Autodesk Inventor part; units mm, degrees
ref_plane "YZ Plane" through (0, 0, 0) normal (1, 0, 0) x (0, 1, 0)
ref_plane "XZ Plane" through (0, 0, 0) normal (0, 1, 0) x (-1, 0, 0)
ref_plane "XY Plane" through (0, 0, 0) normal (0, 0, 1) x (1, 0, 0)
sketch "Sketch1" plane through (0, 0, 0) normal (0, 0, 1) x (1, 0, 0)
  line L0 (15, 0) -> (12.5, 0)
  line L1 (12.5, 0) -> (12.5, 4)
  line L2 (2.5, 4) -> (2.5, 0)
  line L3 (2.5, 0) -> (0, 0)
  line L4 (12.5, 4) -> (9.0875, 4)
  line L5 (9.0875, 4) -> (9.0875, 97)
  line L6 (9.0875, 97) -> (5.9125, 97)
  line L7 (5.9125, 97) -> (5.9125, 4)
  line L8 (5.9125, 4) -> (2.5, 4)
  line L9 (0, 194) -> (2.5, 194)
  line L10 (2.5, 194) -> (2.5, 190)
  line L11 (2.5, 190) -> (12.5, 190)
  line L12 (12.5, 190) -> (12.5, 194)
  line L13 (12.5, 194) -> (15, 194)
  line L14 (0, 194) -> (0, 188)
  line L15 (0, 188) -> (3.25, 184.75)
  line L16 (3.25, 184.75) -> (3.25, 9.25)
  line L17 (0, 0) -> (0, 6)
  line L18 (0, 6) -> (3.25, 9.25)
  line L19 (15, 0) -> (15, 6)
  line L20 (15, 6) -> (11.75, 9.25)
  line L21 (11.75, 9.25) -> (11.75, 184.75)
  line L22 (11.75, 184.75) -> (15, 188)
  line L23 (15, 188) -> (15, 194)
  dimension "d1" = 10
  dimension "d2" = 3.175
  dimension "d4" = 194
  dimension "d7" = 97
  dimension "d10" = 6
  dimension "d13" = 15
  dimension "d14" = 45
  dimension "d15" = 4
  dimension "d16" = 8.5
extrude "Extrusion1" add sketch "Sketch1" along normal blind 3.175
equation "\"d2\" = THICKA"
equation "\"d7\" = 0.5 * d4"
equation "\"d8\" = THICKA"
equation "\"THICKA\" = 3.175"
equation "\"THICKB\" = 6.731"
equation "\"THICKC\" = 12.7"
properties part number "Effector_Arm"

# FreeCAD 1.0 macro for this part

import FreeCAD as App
import Part
import Sketcher
Q = App.Units.Quantity

doc = App.newDocument("Part")
body = doc.addObject("PartDesign::Body", "Body")

sketch1 = doc.addObject("Sketcher::SketchObject", "Sketch")
body.addObject(sketch1)
sketch1.AttachmentSupport = (doc.XY_Plane, [""])
sketch1.MapMode = "FlatFace"
sketch1.addGeometry([
    Part.LineSegment(App.Vector(12.5, 0, 0), App.Vector(15, 0, 0)),
    Part.LineSegment(App.Vector(15, 0, 0), App.Vector(15, 6, 0)),
    Part.LineSegment(App.Vector(15, 6, 0), App.Vector(11.75, 9.25, 0)),
    Part.LineSegment(App.Vector(11.75, 9.25, 0), App.Vector(11.75, 184.75, 0)),
    Part.LineSegment(App.Vector(11.75, 184.75, 0), App.Vector(15, 188, 0)),
    Part.LineSegment(App.Vector(15, 188, 0), App.Vector(15, 194, 0)),
    Part.LineSegment(App.Vector(15, 194, 0), App.Vector(12.5, 194, 0)),
    Part.LineSegment(App.Vector(12.5, 194, 0), App.Vector(12.5, 190, 0)),
    Part.LineSegment(App.Vector(12.5, 190, 0), App.Vector(2.5, 190, 0)),
    Part.LineSegment(App.Vector(2.5, 190, 0), App.Vector(2.5, 194, 0)),
    Part.LineSegment(App.Vector(2.5, 194, 0), App.Vector(0, 194, 0)),
    Part.LineSegment(App.Vector(0, 194, 0), App.Vector(0, 188, 0)),
    Part.LineSegment(App.Vector(0, 188, 0), App.Vector(3.25, 184.75, 0)),
    Part.LineSegment(App.Vector(3.25, 184.75, 0), App.Vector(3.25, 9.25, 0)),
    Part.LineSegment(App.Vector(3.25, 9.25, 0), App.Vector(0, 6, 0)),
    Part.LineSegment(App.Vector(0, 6, 0), App.Vector(0, 0, 0)),
    Part.LineSegment(App.Vector(0, 0, 0), App.Vector(2.5, 0, 0)),
    Part.LineSegment(App.Vector(2.5, 0, 0), App.Vector(2.5, 4, 0)),
    Part.LineSegment(App.Vector(2.5, 4, 0), App.Vector(5.9125, 4, 0)),
    Part.LineSegment(App.Vector(5.9125, 4, 0), App.Vector(5.9125, 97, 0)),
    Part.LineSegment(App.Vector(5.9125, 97, 0), App.Vector(9.0875, 97, 0)),
    Part.LineSegment(App.Vector(9.0875, 97, 0), App.Vector(9.0875, 4, 0)),
    Part.LineSegment(App.Vector(9.0875, 4, 0), App.Vector(12.5, 4, 0)),
    Part.LineSegment(App.Vector(12.5, 4, 0), App.Vector(12.5, 0, 0)),
], False)
sketch1.addConstraint([
    Sketcher.Constraint("Coincident", 0, 2, 1, 1),
    Sketcher.Constraint("Coincident", 1, 2, 2, 1),
    Sketcher.Constraint("Coincident", 2, 2, 3, 1),
    Sketcher.Constraint("Coincident", 3, 2, 4, 1),
    Sketcher.Constraint("Coincident", 4, 2, 5, 1),
    Sketcher.Constraint("Coincident", 5, 2, 6, 1),
    Sketcher.Constraint("Coincident", 6, 2, 7, 1),
    Sketcher.Constraint("Coincident", 7, 2, 8, 1),
    Sketcher.Constraint("Coincident", 8, 2, 9, 1),
    Sketcher.Constraint("Coincident", 9, 2, 10, 1),
    Sketcher.Constraint("Coincident", 10, 2, 11, 1),
    Sketcher.Constraint("Coincident", 11, 2, 12, 1),
    Sketcher.Constraint("Coincident", 12, 2, 13, 1),
    Sketcher.Constraint("Coincident", 13, 2, 14, 1),
    Sketcher.Constraint("Coincident", 14, 2, 15, 1),
    Sketcher.Constraint("Coincident", 15, 2, 16, 1),
    Sketcher.Constraint("Coincident", 16, 2, 17, 1),
    Sketcher.Constraint("Coincident", 17, 2, 18, 1),
    Sketcher.Constraint("Coincident", 18, 2, 19, 1),
    Sketcher.Constraint("Coincident", 19, 2, 20, 1),
    Sketcher.Constraint("Coincident", 20, 2, 21, 1),
    Sketcher.Constraint("Coincident", 21, 2, 22, 1),
    Sketcher.Constraint("Coincident", 22, 2, 23, 1),
    Sketcher.Constraint("Coincident", 23, 2, 0, 1),
    Sketcher.Constraint("Horizontal", 0),
    Sketcher.Constraint("Vertical", 1),
    Sketcher.Constraint("Vertical", 3),
    Sketcher.Constraint("Vertical", 5),
    Sketcher.Constraint("Horizontal", 6),
    Sketcher.Constraint("Vertical", 7),
    Sketcher.Constraint("Horizontal", 8),
    Sketcher.Constraint("Vertical", 9),
    Sketcher.Constraint("Horizontal", 10),
    Sketcher.Constraint("Vertical", 11),
    Sketcher.Constraint("Vertical", 13),
    Sketcher.Constraint("Vertical", 15),
    Sketcher.Constraint("Horizontal", 16),
    Sketcher.Constraint("Vertical", 17),
    Sketcher.Constraint("Horizontal", 18),
    Sketcher.Constraint("Vertical", 19),
    Sketcher.Constraint("Horizontal", 20),
    Sketcher.Constraint("Vertical", 21),
    Sketcher.Constraint("Horizontal", 22),
    Sketcher.Constraint("Vertical", 23),
    Sketcher.Constraint("Coincident", 15, 2, -1, 1),
    Sketcher.Constraint("PointOnObject", 0, 2, -1),
    Sketcher.Constraint("PointOnObject", 10, 2, -2),
    Sketcher.Constraint("Perpendicular", 2, 4),
    Sketcher.Constraint("Perpendicular", 4, 12),
    Sketcher.Constraint("Perpendicular", 12, 14),
    Sketcher.Constraint("Horizontal", 6, 2, 9, 2),
    Sketcher.Constraint("Horizontal", 4, 2, 11, 2),
    Sketcher.Constraint("Horizontal", 3, 2, 12, 2),
    Sketcher.Constraint("Horizontal", 2, 2, 13, 2),
    Sketcher.Constraint("Horizontal", 1, 2, 14, 2),
    Sketcher.Constraint("Horizontal", 18, 2, 21, 2),
    Sketcher.Constraint("Vertical", 1, 2, 4, 2),
    Sketcher.Constraint("Vertical", 9, 2, 16, 2),
    Sketcher.Constraint("Vertical", 7, 2, 22, 2),
    Sketcher.Constraint("Equal", 6, 10),
    Sketcher.Constraint("Equal", 18, 22),
    Sketcher.Constraint("Equal", 1, 5),
    Sketcher.Constraint("Equal", 9, 17),
    Sketcher.Constraint("DistanceX", 8, 2, 8, 1, Q("10 mm")),
    Sketcher.Constraint("DistanceY", 1, 1, 1, 2, Q("6 mm")),
    Sketcher.Constraint("DistanceY", 7, 2, 7, 1, Q("4 mm")),
    Sketcher.Constraint("DistanceX", -1, 1, 0, 2, Q("15 mm")),
    Sketcher.Constraint("DistanceY", -1, 1, 5, 2, Q("194 mm")),
    Sketcher.Constraint("DistanceY", -1, 1, 19, 2, Q("97 mm")),
    Sketcher.Constraint("DistanceX", 12, 2, 3, 2, Q("8.5 mm")),
    Sketcher.Constraint("DistanceX", 20, 1, 20, 2, Q("3.175 mm")),
])
pad1 = doc.addObject("PartDesign::Pad", "Pad")
body.addObject(pad1)
pad1.Profile = sketch1
pad1.Length = 3.175

doc.recompute()
